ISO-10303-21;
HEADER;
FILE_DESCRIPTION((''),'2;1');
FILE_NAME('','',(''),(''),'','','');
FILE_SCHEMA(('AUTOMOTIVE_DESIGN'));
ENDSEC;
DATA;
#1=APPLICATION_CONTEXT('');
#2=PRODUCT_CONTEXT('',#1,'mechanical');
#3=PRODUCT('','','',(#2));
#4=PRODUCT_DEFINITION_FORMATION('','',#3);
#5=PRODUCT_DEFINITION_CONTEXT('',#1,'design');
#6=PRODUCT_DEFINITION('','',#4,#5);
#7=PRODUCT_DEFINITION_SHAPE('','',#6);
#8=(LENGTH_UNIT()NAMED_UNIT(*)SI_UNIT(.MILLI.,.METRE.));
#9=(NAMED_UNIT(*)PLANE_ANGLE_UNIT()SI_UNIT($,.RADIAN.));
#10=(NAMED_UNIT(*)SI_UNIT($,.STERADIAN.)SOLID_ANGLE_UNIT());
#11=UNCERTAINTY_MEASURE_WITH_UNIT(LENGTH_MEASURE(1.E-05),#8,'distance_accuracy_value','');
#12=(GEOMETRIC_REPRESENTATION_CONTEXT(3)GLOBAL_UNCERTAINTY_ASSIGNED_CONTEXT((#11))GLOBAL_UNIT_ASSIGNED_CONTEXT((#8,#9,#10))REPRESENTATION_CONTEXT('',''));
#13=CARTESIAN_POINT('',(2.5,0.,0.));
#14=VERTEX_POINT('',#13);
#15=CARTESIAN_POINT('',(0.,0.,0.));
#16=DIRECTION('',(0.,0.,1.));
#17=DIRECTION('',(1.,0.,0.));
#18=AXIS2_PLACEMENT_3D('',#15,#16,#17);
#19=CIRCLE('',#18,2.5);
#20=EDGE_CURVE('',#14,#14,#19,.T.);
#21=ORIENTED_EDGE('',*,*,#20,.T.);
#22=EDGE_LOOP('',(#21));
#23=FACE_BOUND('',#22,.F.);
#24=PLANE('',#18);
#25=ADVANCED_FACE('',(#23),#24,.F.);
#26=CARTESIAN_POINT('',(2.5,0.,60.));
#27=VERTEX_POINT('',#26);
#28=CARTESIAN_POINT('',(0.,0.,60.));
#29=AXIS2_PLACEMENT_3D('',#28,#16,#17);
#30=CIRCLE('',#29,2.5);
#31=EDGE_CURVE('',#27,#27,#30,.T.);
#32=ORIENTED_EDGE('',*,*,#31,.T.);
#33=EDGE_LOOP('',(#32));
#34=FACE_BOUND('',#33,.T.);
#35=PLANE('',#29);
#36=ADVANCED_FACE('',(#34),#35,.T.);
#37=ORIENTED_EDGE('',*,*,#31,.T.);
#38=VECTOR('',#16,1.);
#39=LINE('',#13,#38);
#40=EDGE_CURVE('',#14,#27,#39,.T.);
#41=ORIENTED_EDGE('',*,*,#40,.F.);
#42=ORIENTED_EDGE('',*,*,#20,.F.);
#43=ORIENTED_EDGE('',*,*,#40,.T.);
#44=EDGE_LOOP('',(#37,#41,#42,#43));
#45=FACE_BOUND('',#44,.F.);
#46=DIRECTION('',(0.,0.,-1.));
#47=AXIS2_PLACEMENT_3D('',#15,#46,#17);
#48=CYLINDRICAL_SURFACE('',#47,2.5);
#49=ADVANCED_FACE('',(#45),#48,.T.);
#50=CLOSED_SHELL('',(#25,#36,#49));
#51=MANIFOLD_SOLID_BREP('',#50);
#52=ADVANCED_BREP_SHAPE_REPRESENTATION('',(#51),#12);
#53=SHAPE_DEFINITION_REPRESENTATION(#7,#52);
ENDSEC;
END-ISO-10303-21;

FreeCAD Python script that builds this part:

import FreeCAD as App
import Part
import Sketcher

V = App.Vector

doc = App.newDocument("Part")
params = doc.addObject("Spreadsheet::Sheet", "Params")
for row, (alias, value) in enumerate([
    ("sketch1_diameter", "5 mm"),
    ("pad1_length", "60 mm"),
], start=1):
    params.set(f"A{row}", alias)
    params.set(f"B{row}", "=" + value)
    params.setAlias(f"B{row}", alias)

body = doc.addObject("PartDesign::Body", "Body")

# Sketch on XY plane
sketch1 = body.newObject("Sketcher::SketchObject", "Sketch")
sketch1.AttachmentSupport = (doc.getObject("XY_Plane"), [""])
sketch1.MapMode = "FlatFace"
sketch1.addGeometry(Part.Circle(V(0, 0, 0), V(0, 0, 1), 2.5), False)
sketch1.addConstraint(Sketcher.Constraint("Coincident", 0, 3, -1, 1))
sketch1.addConstraint(Sketcher.Constraint("Diameter", 0, 5.0))
sketch1.setExpression("Constraints[1]", "Params.sketch1_diameter")
pad1 = body.newObject("PartDesign::Pad", "Pad")
pad1.Profile = sketch1
pad1.setExpression("Length", "Params.pad1_length")

doc.recompute()
